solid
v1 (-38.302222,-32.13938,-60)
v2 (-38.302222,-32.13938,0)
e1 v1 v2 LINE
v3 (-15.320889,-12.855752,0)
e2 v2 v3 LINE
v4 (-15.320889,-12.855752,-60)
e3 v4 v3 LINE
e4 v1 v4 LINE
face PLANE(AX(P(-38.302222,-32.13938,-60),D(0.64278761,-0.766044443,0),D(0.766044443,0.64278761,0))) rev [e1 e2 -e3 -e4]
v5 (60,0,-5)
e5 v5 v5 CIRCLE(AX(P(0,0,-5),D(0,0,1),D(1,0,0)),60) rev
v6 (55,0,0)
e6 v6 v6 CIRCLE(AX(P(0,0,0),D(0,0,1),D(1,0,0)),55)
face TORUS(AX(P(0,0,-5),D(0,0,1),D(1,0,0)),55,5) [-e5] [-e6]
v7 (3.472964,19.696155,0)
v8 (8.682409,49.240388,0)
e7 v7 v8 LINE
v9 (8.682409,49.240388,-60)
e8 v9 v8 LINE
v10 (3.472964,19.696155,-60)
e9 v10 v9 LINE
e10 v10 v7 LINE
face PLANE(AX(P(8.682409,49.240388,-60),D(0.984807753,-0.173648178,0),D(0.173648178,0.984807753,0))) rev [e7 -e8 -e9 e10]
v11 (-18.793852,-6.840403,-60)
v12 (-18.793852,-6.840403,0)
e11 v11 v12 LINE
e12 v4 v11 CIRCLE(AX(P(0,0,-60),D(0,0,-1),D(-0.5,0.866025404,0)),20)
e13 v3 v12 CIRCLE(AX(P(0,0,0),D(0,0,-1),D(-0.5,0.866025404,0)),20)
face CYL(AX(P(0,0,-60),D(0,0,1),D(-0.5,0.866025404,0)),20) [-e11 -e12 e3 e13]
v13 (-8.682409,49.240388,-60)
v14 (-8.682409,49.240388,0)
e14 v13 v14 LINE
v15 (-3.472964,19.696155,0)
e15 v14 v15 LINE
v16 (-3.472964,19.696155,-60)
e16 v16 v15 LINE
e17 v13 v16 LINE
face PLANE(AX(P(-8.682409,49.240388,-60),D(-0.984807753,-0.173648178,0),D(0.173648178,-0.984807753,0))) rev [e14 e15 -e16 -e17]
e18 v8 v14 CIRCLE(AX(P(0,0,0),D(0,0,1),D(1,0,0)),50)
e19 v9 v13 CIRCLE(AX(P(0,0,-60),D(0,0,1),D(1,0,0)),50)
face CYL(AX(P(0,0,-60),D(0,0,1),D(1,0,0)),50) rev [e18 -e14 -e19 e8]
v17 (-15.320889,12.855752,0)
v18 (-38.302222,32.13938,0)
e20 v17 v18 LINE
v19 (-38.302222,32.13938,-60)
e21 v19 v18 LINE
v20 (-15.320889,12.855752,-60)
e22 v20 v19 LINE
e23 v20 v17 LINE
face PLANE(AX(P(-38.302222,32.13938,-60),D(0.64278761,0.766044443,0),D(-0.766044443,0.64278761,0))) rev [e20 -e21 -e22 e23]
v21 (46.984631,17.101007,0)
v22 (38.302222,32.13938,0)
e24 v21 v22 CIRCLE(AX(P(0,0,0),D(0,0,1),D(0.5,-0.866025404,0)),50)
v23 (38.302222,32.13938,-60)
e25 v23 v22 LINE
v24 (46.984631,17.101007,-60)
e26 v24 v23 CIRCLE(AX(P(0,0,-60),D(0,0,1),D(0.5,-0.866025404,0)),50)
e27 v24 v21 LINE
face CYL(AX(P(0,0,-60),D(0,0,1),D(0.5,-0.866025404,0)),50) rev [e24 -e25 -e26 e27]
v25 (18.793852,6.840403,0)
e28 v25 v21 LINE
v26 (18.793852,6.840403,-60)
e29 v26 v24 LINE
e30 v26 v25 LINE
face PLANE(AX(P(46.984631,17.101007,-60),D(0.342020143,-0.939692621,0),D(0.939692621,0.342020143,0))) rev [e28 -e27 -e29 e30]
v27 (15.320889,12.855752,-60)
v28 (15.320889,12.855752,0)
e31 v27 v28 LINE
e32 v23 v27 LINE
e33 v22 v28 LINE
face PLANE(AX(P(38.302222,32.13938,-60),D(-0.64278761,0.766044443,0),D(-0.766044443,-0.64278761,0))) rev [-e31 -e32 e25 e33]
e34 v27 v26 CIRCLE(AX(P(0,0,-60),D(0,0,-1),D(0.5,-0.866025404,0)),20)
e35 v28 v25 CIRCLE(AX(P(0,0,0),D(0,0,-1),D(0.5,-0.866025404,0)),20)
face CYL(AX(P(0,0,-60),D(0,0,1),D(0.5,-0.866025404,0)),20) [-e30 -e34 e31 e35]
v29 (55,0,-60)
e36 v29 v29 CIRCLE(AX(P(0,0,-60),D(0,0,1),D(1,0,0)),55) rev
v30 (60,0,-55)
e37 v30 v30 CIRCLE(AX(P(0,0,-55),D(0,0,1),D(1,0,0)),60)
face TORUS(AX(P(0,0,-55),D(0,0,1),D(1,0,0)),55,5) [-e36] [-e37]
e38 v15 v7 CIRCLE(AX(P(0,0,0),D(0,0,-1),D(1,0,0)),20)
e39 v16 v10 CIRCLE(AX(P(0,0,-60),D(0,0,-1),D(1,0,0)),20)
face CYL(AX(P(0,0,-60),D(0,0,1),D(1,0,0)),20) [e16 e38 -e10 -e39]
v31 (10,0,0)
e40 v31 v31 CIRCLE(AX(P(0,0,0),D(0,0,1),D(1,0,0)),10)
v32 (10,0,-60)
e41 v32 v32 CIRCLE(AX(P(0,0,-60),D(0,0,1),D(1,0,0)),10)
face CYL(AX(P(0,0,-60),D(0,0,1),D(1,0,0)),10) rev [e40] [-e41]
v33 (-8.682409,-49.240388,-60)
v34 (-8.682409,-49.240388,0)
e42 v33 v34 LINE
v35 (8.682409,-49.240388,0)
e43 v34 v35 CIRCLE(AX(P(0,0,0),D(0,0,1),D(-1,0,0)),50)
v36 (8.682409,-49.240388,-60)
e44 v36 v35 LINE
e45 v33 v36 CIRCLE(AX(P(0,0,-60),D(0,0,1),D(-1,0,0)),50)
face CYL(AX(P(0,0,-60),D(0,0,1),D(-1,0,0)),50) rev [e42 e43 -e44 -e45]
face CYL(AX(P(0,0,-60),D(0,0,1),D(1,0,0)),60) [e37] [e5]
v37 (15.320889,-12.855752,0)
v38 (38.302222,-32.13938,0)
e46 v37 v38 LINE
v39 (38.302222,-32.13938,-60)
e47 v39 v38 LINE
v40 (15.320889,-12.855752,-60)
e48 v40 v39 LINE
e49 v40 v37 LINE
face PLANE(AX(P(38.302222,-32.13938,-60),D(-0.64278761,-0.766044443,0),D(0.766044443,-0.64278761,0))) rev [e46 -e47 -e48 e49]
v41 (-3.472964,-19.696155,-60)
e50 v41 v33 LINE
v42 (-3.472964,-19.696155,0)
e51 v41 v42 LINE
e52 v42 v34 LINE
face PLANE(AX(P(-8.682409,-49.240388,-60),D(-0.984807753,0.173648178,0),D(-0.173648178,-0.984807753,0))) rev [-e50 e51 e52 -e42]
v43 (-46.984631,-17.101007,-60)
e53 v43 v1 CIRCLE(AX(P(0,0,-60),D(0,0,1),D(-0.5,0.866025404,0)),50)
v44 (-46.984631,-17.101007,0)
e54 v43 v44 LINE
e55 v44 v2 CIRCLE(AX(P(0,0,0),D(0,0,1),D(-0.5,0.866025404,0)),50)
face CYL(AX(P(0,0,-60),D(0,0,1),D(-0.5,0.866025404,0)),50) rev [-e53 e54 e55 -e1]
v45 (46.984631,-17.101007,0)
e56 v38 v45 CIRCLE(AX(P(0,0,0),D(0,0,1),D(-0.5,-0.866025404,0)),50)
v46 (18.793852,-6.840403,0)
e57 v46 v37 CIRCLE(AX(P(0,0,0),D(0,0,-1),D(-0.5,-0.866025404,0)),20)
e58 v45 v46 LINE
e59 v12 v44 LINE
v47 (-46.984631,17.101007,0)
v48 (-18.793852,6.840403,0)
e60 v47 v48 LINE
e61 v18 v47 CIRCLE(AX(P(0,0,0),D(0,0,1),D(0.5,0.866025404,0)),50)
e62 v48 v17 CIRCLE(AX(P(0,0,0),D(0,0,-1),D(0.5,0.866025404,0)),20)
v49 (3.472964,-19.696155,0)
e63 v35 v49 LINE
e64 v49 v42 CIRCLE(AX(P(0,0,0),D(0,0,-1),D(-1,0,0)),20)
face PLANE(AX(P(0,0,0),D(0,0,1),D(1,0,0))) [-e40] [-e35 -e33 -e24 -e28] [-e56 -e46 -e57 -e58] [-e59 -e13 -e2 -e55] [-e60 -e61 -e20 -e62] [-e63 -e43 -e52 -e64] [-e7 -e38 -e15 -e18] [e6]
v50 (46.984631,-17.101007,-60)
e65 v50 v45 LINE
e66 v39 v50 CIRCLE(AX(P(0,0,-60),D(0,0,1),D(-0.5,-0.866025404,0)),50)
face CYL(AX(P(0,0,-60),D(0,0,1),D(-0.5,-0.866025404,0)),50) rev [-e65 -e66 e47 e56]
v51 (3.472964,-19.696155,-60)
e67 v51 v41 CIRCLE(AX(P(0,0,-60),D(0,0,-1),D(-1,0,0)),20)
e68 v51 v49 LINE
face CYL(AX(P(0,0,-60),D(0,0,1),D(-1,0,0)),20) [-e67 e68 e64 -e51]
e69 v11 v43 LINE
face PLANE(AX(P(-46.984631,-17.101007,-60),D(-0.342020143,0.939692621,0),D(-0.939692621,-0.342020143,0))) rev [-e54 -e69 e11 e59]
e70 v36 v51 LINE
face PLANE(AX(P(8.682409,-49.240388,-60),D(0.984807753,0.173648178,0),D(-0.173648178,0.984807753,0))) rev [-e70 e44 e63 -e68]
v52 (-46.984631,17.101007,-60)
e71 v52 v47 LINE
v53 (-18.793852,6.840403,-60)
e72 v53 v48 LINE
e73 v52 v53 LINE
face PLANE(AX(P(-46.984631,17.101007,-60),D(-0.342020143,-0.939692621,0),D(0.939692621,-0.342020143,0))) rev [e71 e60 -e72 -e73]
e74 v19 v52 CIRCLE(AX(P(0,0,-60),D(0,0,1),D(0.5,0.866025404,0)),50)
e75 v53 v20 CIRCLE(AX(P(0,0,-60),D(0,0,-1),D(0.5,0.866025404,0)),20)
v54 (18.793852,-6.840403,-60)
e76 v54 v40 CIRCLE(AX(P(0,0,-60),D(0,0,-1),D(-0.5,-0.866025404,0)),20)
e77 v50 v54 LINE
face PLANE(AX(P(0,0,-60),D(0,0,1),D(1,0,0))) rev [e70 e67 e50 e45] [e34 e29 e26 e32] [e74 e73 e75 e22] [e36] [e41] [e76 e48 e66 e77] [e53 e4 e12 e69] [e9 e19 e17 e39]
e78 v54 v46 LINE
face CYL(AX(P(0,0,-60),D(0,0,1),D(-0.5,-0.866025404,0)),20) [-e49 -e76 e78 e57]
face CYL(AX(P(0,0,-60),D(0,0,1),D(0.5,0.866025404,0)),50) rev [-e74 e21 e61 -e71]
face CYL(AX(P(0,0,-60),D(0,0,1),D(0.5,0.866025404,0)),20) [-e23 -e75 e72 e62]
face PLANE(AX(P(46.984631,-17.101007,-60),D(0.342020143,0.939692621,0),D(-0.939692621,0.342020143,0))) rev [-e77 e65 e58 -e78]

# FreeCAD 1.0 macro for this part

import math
import FreeCAD as App
import Part
import Sketcher
Q = App.Units.Quantity


def edges_at(feature, points):
    """Names of the edges that pass closest to the given points."""
    edges = feature.Shape.Edges
    near = lambda p: min(range(len(edges)), key=lambda i: edges[i].distToShape(Part.Vertex(*p))[0])
    return sorted({f"Edge{near(p) + 1}" for p in points})

doc = App.newDocument("Part")
body = doc.addObject("PartDesign::Body", "Body")

# Sketch on XY plane
sketch1 = doc.addObject("Sketcher::SketchObject", "Sketch")
body.addObject(sketch1)
sketch1.AttachmentSupport = (doc.XY_Plane, [""])
sketch1.MapMode = "FlatFace"
sketch1.addGeometry(Part.Circle(App.Vector(0, 0, 0), App.Vector(0, 0, 1), 60), False)
sketch1.addGeometry(Part.Circle(App.Vector(0, 0, 0), App.Vector(0, 0, 1), 10), False)
sketch1.addConstraint(Sketcher.Constraint("Coincident", 0, 3, -1, 1))
sketch1.addConstraint(Sketcher.Constraint("Coincident", 1, 3, -1, 1))
sketch1.addConstraint(Sketcher.Constraint("Diameter", 0, 120.0))
sketch1.addConstraint(Sketcher.Constraint("Diameter", 1, 20.0))
pad1 = doc.addObject("PartDesign::Pad", "Pad")
body.addObject(pad1)
pad1.Profile = sketch1
pad1.Length = 60
pad1.Reversed = True

# Sketch on XY plane
sketch2 = doc.addObject("Sketcher::SketchObject", "Sketch001")
body.addObject(sketch2)
sketch2.AttachmentSupport = (doc.XY_Plane, [""])
sketch2.MapMode = "FlatFace"
sketch2.addGeometry(Part.LineSegment(App.Vector(-9, 49, 0), App.Vector(-3, 20, 0)), False)
sketch2.addGeometry(Part.ArcOfCircle(Part.Circle(App.Vector(0, 0, 0), App.Vector(0, 0, 1), 20), math.radians(80), math.radians(100)), False)
sketch2.addGeometry(Part.LineSegment(App.Vector(3, 20, 0), App.Vector(9, 49, 0)), False)
sketch2.addGeometry(Part.ArcOfCircle(Part.Circle(App.Vector(0, 0, 0), App.Vector(0, 0, 1), 50), math.radians(80), math.radians(100)), False)
sketch2.addConstraint(Sketcher.Constraint("Coincident", 0, 2, 1, 2))
sketch2.addConstraint(Sketcher.Constraint("Coincident", 1, 1, 2, 1))
sketch2.addConstraint(Sketcher.Constraint("Coincident", 2, 2, 3, 1))
sketch2.addConstraint(Sketcher.Constraint("Coincident", 3, 2, 0, 1))
sketch2.addConstraint(Sketcher.Constraint("Coincident", 1, 3, -1, 1))
sketch2.addConstraint(Sketcher.Constraint("Coincident", 3, 3, -1, 1))
sketch2.addConstraint(Sketcher.Constraint("Horizontal", 0, 2, 1, 1))
sketch2.addConstraint(Sketcher.Constraint("Horizontal", 2, 2, 3, 2))
sketch2.addConstraint(Sketcher.Constraint("Radius", 1, 20.0))
sketch2.addConstraint(Sketcher.Constraint("Radius", 3, 50.0))
sketch2.addConstraint(Sketcher.Constraint("Angle", 0, Q("-80 deg")))
sketch2.addConstraint(Sketcher.Constraint("DistanceX", -1, 1, 2, 2, 8.682409))
pocket1 = doc.addObject("PartDesign::Pocket", "Pocket")
body.addObject(pocket1)
pocket1.Profile = sketch2
pocket1.Length = 60
doc.recompute()

polarpattern = doc.addObject("PartDesign::PolarPattern", "PolarPattern")
body.addObject(polarpattern)
polarpattern.Originals = [pocket1]
polarpattern.Axis = (doc.Z_Axis, [""])
polarpattern.Angle = 360
polarpattern.Occurrences = 6
body.Tip = polarpattern
doc.recompute()

fillet = doc.addObject("PartDesign::Fillet", "Fillet")
body.addObject(fillet)
fillet.Base = (polarpattern, edges_at(polarpattern, [(-60, 0, 0), (-60, 0, -60)]))
fillet.Radius = 5

doc.recompute()
